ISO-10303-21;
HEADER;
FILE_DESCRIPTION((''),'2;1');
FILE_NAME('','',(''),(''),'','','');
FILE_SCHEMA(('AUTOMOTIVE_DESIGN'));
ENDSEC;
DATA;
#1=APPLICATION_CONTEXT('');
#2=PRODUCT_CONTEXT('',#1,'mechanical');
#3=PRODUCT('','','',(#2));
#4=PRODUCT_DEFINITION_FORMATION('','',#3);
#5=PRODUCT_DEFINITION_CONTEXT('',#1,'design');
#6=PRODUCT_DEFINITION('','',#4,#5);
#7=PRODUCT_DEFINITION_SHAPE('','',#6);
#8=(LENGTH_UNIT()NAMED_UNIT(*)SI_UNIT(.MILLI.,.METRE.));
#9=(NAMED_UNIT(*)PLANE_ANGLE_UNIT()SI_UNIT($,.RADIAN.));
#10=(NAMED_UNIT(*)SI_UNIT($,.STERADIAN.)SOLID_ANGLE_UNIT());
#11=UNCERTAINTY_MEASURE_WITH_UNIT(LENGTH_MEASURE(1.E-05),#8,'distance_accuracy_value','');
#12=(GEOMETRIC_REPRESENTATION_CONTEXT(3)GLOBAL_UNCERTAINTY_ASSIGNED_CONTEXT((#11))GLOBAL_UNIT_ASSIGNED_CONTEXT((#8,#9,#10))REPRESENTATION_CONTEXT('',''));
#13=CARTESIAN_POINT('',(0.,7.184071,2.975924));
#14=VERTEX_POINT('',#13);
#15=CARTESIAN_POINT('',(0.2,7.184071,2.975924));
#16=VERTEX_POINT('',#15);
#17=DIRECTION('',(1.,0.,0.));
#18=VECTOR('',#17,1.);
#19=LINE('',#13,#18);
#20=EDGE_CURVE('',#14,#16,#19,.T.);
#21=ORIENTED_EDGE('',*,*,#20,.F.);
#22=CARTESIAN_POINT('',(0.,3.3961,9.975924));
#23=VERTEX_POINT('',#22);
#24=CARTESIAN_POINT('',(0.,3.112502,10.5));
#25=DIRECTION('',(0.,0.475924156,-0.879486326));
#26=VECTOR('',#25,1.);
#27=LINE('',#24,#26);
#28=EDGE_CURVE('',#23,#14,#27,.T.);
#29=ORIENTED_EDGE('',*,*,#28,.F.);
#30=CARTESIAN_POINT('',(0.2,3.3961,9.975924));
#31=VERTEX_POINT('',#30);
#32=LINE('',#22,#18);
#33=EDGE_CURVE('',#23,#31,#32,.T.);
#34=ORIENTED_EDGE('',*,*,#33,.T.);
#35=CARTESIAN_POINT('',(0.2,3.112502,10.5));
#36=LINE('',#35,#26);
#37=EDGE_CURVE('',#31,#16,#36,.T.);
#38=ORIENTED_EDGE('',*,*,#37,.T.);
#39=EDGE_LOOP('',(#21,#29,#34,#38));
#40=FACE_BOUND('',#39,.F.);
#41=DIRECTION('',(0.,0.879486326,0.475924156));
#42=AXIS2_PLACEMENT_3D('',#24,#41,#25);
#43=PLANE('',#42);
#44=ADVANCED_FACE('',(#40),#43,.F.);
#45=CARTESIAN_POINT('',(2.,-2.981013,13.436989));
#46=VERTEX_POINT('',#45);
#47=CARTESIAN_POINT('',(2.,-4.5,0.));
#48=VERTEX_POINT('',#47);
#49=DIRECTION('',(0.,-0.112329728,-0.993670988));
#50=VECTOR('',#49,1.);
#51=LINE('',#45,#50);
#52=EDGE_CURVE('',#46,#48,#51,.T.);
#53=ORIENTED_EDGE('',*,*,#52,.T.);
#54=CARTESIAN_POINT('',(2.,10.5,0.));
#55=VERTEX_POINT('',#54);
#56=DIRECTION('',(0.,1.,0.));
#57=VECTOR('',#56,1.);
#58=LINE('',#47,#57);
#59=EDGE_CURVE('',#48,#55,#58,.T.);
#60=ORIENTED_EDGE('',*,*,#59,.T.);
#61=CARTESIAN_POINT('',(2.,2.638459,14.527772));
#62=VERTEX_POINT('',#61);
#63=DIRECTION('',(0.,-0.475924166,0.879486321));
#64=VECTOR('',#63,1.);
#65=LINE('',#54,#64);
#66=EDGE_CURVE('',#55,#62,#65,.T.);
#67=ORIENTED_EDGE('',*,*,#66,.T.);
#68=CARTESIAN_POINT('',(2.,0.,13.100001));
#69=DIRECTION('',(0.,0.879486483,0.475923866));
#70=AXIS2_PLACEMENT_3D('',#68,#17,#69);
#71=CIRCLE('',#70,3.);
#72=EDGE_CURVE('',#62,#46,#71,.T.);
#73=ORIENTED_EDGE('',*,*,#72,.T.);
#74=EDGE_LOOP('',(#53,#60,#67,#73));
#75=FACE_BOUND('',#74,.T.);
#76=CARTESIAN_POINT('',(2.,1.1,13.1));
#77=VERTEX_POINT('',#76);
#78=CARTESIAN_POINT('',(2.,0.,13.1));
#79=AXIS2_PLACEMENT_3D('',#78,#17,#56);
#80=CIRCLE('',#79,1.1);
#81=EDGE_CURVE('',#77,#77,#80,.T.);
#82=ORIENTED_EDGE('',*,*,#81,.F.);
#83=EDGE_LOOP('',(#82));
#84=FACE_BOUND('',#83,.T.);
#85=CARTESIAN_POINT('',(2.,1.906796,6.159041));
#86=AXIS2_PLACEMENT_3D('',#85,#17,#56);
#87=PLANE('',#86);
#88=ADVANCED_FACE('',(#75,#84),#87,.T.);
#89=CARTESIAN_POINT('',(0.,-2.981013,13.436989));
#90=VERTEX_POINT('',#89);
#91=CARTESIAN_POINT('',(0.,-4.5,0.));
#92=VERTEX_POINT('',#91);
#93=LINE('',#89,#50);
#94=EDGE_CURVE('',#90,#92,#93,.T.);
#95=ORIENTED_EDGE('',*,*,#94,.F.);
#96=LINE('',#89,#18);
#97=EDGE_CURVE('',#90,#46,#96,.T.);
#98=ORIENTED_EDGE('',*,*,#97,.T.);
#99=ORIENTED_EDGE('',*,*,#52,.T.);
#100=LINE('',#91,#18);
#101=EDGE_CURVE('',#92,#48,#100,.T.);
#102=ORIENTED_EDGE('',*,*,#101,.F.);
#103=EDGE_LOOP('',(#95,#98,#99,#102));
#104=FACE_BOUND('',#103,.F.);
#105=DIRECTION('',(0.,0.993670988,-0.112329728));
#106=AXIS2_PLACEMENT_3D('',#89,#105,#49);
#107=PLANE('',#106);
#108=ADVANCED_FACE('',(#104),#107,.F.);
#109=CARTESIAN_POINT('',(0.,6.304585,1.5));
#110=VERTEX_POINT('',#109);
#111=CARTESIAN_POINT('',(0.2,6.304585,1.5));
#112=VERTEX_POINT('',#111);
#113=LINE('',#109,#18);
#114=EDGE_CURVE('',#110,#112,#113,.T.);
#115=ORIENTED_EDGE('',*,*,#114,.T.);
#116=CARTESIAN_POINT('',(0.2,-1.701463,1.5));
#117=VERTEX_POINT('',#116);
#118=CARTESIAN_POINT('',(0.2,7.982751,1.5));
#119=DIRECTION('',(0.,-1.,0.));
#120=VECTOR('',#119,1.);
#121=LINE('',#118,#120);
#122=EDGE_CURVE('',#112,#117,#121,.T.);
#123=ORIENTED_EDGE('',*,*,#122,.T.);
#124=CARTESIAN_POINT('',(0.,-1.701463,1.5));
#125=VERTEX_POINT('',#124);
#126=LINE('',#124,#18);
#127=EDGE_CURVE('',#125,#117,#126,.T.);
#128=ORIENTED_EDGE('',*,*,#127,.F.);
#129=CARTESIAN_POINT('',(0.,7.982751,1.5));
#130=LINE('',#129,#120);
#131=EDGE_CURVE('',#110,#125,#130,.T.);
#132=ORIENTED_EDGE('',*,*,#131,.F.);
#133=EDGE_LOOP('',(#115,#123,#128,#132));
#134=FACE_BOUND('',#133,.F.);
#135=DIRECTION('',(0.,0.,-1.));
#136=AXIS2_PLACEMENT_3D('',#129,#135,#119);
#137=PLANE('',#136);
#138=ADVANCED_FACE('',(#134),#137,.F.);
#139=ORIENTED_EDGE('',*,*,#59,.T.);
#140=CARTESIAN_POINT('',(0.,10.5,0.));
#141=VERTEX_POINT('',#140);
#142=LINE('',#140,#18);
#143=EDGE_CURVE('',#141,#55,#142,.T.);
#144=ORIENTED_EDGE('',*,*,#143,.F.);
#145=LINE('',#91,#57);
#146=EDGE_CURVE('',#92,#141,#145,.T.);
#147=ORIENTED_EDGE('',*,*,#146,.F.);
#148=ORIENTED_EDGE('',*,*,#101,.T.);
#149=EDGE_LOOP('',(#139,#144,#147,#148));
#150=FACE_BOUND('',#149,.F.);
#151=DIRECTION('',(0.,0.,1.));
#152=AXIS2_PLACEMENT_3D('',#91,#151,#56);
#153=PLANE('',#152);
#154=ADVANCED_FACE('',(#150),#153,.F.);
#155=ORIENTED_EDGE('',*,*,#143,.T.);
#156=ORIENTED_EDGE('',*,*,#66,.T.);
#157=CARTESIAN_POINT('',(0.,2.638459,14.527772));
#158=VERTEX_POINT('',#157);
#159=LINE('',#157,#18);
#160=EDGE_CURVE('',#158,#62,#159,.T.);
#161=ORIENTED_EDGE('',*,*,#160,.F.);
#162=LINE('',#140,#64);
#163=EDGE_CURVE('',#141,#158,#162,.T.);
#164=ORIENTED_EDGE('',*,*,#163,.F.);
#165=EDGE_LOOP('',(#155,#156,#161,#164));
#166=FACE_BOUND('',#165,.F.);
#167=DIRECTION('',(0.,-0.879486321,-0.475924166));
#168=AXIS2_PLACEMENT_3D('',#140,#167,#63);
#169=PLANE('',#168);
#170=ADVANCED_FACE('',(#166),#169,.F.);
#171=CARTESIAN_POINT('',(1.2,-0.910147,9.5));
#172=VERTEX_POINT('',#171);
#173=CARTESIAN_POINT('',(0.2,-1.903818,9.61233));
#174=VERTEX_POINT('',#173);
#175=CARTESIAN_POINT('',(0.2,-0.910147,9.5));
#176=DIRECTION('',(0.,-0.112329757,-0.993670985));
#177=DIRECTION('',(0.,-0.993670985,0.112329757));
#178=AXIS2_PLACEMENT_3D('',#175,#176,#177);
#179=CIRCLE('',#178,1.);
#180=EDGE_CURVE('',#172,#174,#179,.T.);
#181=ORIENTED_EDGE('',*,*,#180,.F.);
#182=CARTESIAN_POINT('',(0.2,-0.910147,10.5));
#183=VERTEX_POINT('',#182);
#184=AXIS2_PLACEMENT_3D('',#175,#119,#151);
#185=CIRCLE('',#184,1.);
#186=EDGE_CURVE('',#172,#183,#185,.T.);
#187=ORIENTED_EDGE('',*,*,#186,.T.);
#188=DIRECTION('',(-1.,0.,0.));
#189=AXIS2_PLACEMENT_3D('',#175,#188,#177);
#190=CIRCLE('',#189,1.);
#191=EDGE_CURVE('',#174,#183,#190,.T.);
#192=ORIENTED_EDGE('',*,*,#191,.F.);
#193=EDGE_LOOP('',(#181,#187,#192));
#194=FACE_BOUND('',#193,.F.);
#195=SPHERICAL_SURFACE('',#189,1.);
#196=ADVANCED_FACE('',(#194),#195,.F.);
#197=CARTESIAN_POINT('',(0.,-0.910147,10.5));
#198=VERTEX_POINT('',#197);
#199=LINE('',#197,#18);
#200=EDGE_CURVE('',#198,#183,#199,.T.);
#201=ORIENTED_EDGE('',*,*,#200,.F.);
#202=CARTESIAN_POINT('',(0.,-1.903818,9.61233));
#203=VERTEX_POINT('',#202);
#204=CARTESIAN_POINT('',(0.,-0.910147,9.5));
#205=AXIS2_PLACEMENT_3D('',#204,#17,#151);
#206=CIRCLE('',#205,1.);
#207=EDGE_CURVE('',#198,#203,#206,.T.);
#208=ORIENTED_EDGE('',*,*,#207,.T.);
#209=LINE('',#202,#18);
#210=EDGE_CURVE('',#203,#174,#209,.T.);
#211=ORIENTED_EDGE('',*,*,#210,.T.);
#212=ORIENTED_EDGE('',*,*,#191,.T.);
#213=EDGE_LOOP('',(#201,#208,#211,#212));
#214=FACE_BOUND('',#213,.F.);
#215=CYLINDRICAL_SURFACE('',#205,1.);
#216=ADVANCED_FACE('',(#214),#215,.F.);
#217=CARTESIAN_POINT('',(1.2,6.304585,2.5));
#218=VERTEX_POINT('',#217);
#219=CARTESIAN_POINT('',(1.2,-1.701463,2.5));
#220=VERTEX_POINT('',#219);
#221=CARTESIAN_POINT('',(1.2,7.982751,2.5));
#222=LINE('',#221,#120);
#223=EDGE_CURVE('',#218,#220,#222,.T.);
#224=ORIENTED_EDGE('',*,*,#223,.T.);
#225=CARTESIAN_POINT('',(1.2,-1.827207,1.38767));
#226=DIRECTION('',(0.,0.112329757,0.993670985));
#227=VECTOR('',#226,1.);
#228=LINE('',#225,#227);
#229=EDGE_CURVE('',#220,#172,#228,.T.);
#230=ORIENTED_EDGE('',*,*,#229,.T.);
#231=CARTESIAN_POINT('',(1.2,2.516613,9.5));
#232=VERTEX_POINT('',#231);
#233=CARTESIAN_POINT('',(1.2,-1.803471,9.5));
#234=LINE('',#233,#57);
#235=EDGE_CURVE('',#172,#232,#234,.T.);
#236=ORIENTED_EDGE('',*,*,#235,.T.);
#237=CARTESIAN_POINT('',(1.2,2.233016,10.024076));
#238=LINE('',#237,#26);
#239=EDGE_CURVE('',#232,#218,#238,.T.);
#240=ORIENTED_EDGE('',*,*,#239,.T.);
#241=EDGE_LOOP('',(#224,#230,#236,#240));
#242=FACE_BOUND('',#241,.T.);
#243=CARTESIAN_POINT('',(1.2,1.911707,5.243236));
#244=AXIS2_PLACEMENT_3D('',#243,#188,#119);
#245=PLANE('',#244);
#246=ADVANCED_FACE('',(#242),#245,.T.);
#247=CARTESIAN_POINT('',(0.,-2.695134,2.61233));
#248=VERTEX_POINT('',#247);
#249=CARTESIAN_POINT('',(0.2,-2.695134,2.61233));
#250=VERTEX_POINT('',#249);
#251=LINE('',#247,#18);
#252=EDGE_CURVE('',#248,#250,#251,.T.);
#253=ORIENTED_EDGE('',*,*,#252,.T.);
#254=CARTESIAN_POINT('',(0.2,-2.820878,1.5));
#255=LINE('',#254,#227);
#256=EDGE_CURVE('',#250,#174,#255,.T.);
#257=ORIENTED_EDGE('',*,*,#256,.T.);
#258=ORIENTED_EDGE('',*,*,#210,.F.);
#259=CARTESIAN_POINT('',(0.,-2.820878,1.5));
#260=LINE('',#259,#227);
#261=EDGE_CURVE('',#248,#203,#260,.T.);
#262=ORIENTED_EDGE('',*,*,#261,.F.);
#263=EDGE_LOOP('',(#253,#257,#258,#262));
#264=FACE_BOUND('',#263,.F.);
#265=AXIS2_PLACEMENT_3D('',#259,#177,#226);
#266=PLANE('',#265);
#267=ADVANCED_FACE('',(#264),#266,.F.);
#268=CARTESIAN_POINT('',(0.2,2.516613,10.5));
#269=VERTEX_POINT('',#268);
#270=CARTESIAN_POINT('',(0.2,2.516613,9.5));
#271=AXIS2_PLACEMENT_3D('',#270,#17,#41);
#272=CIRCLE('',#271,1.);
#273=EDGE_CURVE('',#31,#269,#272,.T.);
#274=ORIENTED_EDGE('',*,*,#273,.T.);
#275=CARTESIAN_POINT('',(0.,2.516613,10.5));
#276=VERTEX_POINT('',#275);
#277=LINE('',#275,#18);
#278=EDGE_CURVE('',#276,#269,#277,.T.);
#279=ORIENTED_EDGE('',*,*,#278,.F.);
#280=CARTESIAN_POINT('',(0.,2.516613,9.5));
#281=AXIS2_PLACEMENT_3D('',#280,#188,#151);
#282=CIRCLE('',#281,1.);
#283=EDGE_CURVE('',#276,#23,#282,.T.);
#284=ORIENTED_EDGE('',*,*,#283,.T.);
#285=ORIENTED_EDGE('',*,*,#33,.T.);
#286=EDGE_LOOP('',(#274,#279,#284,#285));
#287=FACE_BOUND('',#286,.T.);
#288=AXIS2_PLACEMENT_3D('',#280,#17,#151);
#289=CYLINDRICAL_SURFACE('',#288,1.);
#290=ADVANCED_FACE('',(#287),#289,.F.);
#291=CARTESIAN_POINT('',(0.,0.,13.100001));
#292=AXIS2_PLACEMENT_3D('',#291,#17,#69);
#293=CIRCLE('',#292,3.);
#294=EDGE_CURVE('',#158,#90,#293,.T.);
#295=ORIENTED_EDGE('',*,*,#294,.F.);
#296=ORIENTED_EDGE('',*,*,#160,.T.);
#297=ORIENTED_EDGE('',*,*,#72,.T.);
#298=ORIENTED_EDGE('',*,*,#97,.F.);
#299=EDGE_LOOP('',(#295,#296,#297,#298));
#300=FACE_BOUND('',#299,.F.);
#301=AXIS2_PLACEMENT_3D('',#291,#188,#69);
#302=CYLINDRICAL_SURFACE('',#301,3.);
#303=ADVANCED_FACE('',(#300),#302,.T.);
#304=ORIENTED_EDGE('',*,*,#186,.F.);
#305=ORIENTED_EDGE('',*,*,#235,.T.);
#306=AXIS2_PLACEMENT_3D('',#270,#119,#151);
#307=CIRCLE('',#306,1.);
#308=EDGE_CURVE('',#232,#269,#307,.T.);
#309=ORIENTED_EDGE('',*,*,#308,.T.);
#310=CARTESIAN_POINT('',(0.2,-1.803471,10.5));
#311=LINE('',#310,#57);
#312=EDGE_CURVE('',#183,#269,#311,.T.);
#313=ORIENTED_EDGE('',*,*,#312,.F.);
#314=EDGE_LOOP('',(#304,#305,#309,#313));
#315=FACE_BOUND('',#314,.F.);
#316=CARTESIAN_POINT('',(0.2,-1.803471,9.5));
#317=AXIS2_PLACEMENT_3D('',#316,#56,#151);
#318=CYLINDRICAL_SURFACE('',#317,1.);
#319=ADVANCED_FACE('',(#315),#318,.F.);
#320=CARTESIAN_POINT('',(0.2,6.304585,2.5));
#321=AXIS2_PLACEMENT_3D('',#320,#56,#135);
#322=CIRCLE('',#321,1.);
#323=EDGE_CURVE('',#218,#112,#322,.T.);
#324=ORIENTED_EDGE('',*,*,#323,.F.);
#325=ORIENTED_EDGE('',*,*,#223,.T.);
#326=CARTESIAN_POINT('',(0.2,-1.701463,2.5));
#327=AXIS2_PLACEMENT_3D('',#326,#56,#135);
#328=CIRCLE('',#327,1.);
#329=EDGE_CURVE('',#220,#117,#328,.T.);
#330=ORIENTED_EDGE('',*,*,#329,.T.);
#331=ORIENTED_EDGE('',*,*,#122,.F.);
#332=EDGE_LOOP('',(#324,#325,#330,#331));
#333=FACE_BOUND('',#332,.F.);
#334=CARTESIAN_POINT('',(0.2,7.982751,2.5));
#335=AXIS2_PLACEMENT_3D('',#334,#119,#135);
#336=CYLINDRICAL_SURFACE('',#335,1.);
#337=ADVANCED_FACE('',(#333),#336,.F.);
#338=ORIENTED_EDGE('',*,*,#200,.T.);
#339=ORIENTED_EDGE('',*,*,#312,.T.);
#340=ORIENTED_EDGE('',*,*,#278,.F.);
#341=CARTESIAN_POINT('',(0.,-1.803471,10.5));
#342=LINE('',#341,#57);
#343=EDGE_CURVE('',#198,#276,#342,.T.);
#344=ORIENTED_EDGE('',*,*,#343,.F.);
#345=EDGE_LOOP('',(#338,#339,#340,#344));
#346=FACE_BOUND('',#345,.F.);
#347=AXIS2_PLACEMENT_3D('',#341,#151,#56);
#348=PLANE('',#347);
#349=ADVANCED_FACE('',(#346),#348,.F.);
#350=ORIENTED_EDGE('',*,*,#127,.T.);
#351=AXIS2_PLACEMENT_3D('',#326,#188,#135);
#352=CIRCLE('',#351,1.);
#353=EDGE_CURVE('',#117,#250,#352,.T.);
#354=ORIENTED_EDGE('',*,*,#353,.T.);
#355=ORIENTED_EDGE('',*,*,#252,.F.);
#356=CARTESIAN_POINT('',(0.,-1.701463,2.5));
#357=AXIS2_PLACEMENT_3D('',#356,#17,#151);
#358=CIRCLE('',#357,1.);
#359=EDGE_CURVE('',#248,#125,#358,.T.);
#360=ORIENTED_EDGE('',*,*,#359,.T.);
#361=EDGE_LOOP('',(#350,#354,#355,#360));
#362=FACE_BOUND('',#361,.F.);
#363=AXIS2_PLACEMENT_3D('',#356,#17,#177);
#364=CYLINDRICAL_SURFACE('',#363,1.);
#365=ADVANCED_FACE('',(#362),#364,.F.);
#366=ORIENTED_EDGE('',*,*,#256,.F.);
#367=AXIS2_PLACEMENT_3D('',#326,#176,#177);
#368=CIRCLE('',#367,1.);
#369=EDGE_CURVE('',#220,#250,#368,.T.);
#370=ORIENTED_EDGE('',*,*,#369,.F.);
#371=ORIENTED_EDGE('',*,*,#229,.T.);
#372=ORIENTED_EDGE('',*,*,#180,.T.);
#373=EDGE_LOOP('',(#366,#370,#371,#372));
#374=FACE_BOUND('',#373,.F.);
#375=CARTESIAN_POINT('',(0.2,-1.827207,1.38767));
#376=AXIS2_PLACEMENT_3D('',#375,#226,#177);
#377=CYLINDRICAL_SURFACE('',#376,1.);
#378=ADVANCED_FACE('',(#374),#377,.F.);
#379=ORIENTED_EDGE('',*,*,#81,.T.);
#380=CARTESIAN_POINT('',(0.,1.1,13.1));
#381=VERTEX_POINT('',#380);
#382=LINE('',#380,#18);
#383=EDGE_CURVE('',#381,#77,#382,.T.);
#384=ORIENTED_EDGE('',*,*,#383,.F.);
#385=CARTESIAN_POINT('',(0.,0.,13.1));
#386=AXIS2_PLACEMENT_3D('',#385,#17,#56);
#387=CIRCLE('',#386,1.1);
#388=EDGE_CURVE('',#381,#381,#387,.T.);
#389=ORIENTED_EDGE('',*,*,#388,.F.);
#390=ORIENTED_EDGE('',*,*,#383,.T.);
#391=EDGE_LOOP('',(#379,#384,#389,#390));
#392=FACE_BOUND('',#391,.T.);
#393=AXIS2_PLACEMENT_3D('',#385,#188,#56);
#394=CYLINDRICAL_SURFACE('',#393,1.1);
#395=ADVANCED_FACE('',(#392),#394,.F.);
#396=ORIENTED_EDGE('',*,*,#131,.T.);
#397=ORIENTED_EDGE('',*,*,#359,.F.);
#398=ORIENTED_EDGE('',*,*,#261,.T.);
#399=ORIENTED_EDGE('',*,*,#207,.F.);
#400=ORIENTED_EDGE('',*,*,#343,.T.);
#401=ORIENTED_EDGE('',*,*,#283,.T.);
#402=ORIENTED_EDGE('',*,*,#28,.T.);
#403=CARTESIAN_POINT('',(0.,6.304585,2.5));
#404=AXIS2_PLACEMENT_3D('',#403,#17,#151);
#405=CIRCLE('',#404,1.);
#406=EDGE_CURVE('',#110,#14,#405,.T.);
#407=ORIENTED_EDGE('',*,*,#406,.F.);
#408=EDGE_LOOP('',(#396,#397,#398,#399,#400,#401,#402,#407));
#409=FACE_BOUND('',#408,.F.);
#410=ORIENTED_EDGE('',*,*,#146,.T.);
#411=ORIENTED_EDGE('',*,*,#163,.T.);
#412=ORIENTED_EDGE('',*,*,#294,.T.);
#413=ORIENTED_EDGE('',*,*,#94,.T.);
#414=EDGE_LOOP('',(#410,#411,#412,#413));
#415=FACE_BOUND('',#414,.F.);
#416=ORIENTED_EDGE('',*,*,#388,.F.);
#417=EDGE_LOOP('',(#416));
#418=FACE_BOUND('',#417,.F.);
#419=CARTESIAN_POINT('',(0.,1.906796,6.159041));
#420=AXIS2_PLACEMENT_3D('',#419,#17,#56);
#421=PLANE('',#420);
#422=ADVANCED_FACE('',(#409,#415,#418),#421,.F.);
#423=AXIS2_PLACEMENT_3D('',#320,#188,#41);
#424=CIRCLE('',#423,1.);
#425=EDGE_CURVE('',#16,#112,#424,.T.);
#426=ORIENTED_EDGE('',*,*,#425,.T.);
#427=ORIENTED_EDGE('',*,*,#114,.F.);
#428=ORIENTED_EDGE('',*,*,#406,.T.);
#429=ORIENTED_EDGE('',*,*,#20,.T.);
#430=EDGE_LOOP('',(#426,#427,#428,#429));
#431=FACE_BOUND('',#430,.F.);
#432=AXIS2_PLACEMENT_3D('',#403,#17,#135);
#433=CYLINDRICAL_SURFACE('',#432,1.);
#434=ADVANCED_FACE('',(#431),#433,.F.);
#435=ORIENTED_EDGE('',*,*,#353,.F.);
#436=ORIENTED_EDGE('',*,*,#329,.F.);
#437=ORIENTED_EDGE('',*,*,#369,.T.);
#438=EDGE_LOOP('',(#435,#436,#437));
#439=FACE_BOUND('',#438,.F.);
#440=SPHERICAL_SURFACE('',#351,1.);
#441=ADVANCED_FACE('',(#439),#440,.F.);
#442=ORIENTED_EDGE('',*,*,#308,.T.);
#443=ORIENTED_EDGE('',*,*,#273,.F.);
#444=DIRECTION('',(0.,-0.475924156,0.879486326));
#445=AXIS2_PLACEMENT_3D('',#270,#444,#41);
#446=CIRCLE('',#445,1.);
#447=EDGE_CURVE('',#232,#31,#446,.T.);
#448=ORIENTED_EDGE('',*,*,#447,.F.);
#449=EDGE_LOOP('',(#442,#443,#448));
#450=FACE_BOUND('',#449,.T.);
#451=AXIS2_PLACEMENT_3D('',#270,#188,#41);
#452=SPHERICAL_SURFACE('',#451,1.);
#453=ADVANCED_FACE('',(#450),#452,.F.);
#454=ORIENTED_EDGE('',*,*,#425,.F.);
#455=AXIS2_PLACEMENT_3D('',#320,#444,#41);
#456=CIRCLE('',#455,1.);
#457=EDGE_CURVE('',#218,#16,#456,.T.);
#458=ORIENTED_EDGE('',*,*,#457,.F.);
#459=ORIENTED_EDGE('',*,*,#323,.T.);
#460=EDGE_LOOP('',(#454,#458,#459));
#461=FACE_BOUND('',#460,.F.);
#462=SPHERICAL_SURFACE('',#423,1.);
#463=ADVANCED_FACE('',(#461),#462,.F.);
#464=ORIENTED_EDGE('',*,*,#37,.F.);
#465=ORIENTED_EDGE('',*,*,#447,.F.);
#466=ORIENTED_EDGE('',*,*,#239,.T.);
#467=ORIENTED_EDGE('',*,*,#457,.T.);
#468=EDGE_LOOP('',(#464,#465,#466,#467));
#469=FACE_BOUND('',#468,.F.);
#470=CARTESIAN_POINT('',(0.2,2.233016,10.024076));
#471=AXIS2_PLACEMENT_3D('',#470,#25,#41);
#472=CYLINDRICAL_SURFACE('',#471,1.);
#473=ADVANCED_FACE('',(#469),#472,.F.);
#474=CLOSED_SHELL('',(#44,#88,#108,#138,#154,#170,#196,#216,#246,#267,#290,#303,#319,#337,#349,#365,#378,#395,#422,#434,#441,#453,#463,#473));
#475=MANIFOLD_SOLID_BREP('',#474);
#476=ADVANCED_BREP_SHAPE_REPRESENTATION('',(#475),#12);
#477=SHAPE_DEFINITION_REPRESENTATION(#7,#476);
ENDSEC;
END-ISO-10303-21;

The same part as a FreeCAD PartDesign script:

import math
import FreeCAD as App
import Part
import Sketcher
from FreeCAD import Vector


def edges_at(feature, points):
    """Names of the edges that pass closest to the given points."""
    edges = feature.Shape.Edges
    near = lambda p: min(range(len(edges)), key=lambda i: edges[i].distToShape(Part.Vertex(*p))[0])
    return sorted({f"Edge{near(p) + 1}" for p in points})

doc = App.newDocument("Part")
body = doc.addObject("PartDesign::Body", "Body")

sketch1 = doc.addObject("Sketcher::SketchObject", "Sketch")
body.addObject(sketch1)
sketch1.AttachmentSupport = (doc.YZ_Plane, [""])
sketch1.MapMode = "FlatFace"
sketch1.addGeometry([
    Part.LineSegment(Vector(-4.5, 0, 0), Vector(10.5, 0, 0)),
    Part.LineSegment(Vector(10.5, 0, 0), Vector(2.638459, 14.527772, 0)),
    Part.ArcOfCircle(Part.Circle(Vector(0, 13.100001, 0), Vector(0, 0, 1), 3), math.radians(28.41952), math.radians(173.550381)),
    Part.LineSegment(Vector(-2.981013, 13.436989, 0), Vector(-4.5, 0, 0)),
    Part.Circle(Vector(0, 13.1, 0), Vector(0, 0, 1), 1.1),
], False)
sketch1.addConstraint([
    Sketcher.Constraint("Coincident", 0, 2, 1, 1),
    Sketcher.Constraint("Tangent", 1, 2, 2, 1),
    Sketcher.Constraint("Tangent", 2, 2, 3, 1),
    Sketcher.Constraint("Coincident", 3, 2, 0, 1),
    Sketcher.Constraint("Horizontal", 0),
    Sketcher.Constraint("Coincident", 4, 3, 2, 3),
    Sketcher.Constraint("PointOnObject", 2, 3, -2),
    Sketcher.Constraint("PointOnObject", 0, 2, -1),
    Sketcher.Constraint("Radius", 2, 3.0),
    Sketcher.Constraint("Diameter", 4, 2.2),
    Sketcher.Constraint("DistanceX", 0, 1, 0, 2, 15.0),
    Sketcher.Constraint("DistanceY", -1, 1, 2, 3, 13.100001),
    Sketcher.Constraint("DistanceX", -1, 1, 0, 2, 10.5),
])
pad1 = doc.addObject("PartDesign::Pad", "Pad")
body.addObject(pad1)
pad1.Profile = sketch1
pad1.Length = 2

sketch2 = doc.addObject("Sketcher::SketchObject", "Sketch001")
body.addObject(sketch2)
sketch2.AttachmentSupport = (doc.YZ_Plane, [""])
sketch2.MapMode = "FlatFace"
sketch2.addGeometry([
    Part.LineSegment(Vector(3.112502, 10.5, 0), Vector(7.982751, 1.5, 0)),
    Part.LineSegment(Vector(7.982751, 1.5, 0), Vector(-2.820878, 1.5, 0)),
    Part.LineSegment(Vector(-2.820878, 1.5, 0), Vector(-1.803471, 10.5, 0)),
    Part.LineSegment(Vector(-1.803471, 10.5, 0), Vector(3.112502, 10.5, 0)),
], False)
sketch2.addConstraint([
    Sketcher.Constraint("Coincident", 0, 2, 1, 1),
    Sketcher.Constraint("Coincident", 1, 2, 2, 1),
    Sketcher.Constraint("Coincident", 2, 2, 3, 1),
    Sketcher.Constraint("Coincident", 3, 2, 0, 1),
    Sketcher.Constraint("Horizontal", 1),
    Sketcher.Constraint("Horizontal", 3),
    Sketcher.Constraint("DistanceY", 1, 2, 2, 2, 9.0),
    Sketcher.Constraint("DistanceY", -1, 1, 0, 2, 1.5),
    Sketcher.Constraint("DistanceX", 1, 2, 1, 1, 10.803629),
    Sketcher.Constraint("DistanceX", 3, 1, 3, 2, 4.915973),
    Sketcher.Constraint("DistanceX", -1, 1, 0, 2, 7.982751),
    Sketcher.Constraint("DistanceX", 2, 2, -1, 1, 1.803471),
])
pocket1 = doc.addObject("PartDesign::Pocket", "Pocket")
body.addObject(pocket1)
pocket1.Profile = sketch2
pocket1.Length = 1.2
pocket1.Reversed = True
doc.recompute()

fillet = doc.addObject("PartDesign::Fillet", "Fillet")
body.addObject(fillet)
fillet.Base = (pocket1, edges_at(pocket1, [
    (0.6, 3.113, 10.5),
    (0.6, -1.803, 10.5),
    (0.6, -2.821, 1.5),
    (0.6, 7.983, 1.5),
    (1.2, 5.548, 6),
    (1.2, 2.581, 1.5),
    (1.2, -2.312, 6),
    (1.2, 0.655, 10.5),
]))
fillet.Radius = 1

doc.recompute()
